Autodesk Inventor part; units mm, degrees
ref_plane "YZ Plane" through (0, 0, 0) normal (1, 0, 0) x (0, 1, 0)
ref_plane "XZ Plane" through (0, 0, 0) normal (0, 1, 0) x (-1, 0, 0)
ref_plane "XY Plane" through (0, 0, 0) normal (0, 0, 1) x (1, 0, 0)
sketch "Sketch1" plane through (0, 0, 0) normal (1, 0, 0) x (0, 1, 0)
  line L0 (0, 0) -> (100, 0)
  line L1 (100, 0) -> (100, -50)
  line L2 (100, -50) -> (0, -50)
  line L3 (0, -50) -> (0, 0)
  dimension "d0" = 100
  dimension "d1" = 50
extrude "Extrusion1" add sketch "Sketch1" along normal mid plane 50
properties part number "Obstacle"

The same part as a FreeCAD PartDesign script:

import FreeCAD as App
import Part
import Sketcher
Q = App.Units.Quantity

doc = App.newDocument("Part")
body = doc.addObject("PartDesign::Body", "Body")

sketch1 = doc.addObject("Sketcher::SketchObject", "Sketch")
body.addObject(sketch1)
sketch1.AttachmentSupport = (doc.YZ_Plane, [""])
sketch1.MapMode = "FlatFace"
sketch1.addGeometry(Part.LineSegment(App.Vector(100, 0, 0), App.Vector(0, 0, 0)), False)
sketch1.addGeometry(Part.LineSegment(App.Vector(0, 0, 0), App.Vector(0, -50, 0)), False)
sketch1.addGeometry(Part.LineSegment(App.Vector(0, -50, 0), App.Vector(100, -50, 0)), False)
sketch1.addGeometry(Part.LineSegment(App.Vector(100, -50, 0), App.Vector(100, 0, 0)), False)
sketch1.addConstraint(Sketcher.Constraint("Coincident", 0, 2, 1, 1))
sketch1.addConstraint(Sketcher.Constraint("Coincident", 1, 2, 2, 1))
sketch1.addConstraint(Sketcher.Constraint("Coincident", 2, 2, 3, 1))
sketch1.addConstraint(Sketcher.Constraint("Coincident", 3, 2, 0, 1))
sketch1.addConstraint(Sketcher.Constraint("Horizontal", 0))
sketch1.addConstraint(Sketcher.Constraint("Vertical", 1))
sketch1.addConstraint(Sketcher.Constraint("Horizontal", 2))
sketch1.addConstraint(Sketcher.Constraint("Vertical", 3))
sketch1.addConstraint(Sketcher.Constraint("Coincident", 0, 2, -1, 1))
sketch1.addConstraint(Sketcher.Constraint("DistanceX", 0, 2, 0, 1, Q("100 mm")))
sketch1.addConstraint(Sketcher.Constraint("DistanceY", 1, 2, 1, 1, Q("50 mm")))
pad1 = doc.addObject("PartDesign::Pad", "Pad")
body.addObject(pad1)
pad1.Profile = sketch1
pad1.Length = 50
pad1.Midplane = True

doc.recompute()
